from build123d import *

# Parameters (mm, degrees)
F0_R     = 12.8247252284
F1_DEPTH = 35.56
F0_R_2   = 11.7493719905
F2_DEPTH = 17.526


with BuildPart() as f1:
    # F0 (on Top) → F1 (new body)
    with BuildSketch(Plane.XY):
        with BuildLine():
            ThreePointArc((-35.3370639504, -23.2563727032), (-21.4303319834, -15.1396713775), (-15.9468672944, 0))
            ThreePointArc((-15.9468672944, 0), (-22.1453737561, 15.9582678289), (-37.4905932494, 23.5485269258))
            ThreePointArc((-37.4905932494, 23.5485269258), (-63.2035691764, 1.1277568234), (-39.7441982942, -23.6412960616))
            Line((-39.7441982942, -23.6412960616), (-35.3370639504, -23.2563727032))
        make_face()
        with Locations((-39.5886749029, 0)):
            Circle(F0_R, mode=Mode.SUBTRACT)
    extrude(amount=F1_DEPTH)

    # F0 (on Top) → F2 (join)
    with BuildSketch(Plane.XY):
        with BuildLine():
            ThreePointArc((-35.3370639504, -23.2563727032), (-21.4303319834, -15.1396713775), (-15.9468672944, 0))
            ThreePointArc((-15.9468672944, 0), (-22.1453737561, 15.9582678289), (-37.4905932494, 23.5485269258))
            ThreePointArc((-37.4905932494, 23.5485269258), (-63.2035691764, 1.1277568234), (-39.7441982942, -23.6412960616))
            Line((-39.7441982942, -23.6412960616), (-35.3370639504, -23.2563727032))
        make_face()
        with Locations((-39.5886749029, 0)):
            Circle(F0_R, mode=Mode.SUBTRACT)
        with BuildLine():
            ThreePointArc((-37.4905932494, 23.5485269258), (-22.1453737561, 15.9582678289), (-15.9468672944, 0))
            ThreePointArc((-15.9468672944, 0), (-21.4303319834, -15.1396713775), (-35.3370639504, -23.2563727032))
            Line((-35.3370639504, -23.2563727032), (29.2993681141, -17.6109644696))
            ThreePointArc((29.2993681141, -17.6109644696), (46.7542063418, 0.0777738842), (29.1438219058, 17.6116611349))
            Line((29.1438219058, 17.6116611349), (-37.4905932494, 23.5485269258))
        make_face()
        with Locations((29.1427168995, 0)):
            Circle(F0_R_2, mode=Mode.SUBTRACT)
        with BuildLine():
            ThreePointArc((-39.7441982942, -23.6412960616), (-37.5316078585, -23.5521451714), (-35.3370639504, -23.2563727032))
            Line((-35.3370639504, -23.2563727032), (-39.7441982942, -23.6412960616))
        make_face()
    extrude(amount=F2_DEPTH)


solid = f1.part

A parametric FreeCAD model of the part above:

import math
import FreeCAD as App
import Part
import Sketcher

V = App.Vector
Q = App.Units.Quantity

doc = App.newDocument("Part")
body = doc.addObject("PartDesign::Body", "Body")

sketch1 = doc.addObject("Sketcher::SketchObject", "Sketch")
body.addObject(sketch1)
sketch1.AttachmentSupport = (doc.XY_Plane, [""])
sketch1.MapMode = "FlatFace"
sketch1.addGeometry([
    Part.ArcOfCircle(Part.Circle(V(-39.588675, 0, 0), V(0, 0, 1), 23.641808), math.radians(-79.639884), math.radians(0)),
    Part.ArcOfCircle(Part.Circle(V(-39.588675, 0, 0), V(0, 0, 1), 23.641808), math.radians(0), math.radians(84.908614)),
    Part.ArcOfCircle(Part.Circle(V(-39.588675, 0, 0), V(0, 0, 1), 23.641808), math.radians(84.908614), math.radians(269.623087)),
    Part.LineSegment(V(-39.744198, -23.641296, 0), V(-35.337064, -23.256373, 0)),
    Part.Circle(V(-39.588675, 0, 0), V(0, 0, 1), 12.824725),
], False)
sketch1.addConstraint([
    Sketcher.Constraint("Tangent", 0, 2, 1, 1),
    Sketcher.Constraint("Tangent", 1, 2, 2, 1),
    Sketcher.Constraint("Coincident", 2, 2, 3, 1),
    Sketcher.Constraint("Coincident", 3, 2, 0, 1),
    Sketcher.Constraint("Coincident", 2, 3, 0, 3),
    Sketcher.Constraint("Coincident", 4, 3, 0, 3),
    Sketcher.Constraint("PointOnObject", 0, 3, -1),
    Sketcher.Constraint("PointOnObject", 0, 2, -1),
    Sketcher.Constraint("Diameter", 4, Q("25.64945 mm")),
    Sketcher.Constraint("Radius", 0, Q("23.641808 mm")),
    Sketcher.Constraint("DistanceX", 2, 2, -1, 1, Q("39.744198 mm")),
    Sketcher.Constraint("DistanceX", 0, 3, 1, 2, Q("2.098082 mm")),
    Sketcher.Constraint("DistanceX", 2, 2, 0, 2, Q("23.797331 mm")),
    Sketcher.Constraint("DistanceX", 0, 3, 3, 2, Q("4.251611 mm")),
])
pad1 = doc.addObject("PartDesign::Pad", "Pad")
body.addObject(pad1)
pad1.Profile = sketch1
pad1.Length = Q("1.4 in")

sketch2 = doc.addObject("Sketcher::SketchObject", "Sketch001")
body.addObject(sketch2)
sketch2.AttachmentSupport = (doc.XY_Plane, [""])
sketch2.MapMode = "FlatFace"
sketch2.addGeometry([
    Part.ArcOfCircle(Part.Circle(V(-39.588675, 0, 0), V(0, 0, 1), 23.641808), math.radians(84.908614), math.radians(269.623087)),
    Part.ArcOfCircle(Part.Circle(V(-39.588675, 0, 0), V(0, 0, 1), 23.641808), math.radians(-90.376913), math.radians(-79.639884)),
    Part.LineSegment(V(-35.337064, -23.256373, 0), V(29.299368, -17.610964, 0)),
    Part.ArcOfCircle(Part.Circle(V(29.142717, 0, 0), V(0, 0, 1), 17.611661), math.radians(-89.490362), math.radians(89.996405)),
    Part.LineSegment(V(29.143822, 17.611661, 0), V(-37.490593, 23.548527, 0)),
    Part.Circle(V(-39.588675, 0, 0), V(0, 0, 1), 12.824725),
    Part.Circle(V(29.142717, 0, 0), V(0, 0, 1), 11.749372),
], False)
sketch2.addConstraint([
    Sketcher.Constraint("Tangent", 0, 2, 1, 1),
    Sketcher.Constraint("Coincident", 1, 2, 2, 1),
    Sketcher.Constraint("Coincident", 2, 2, 3, 1),
    Sketcher.Constraint("Coincident", 3, 2, 4, 1),
    Sketcher.Constraint("Tangent", 4, 2, 0, 1),
    Sketcher.Constraint("Coincident", 5, 3, 0, 3),
    Sketcher.Constraint("Coincident", 6, 3, 3, 3),
    Sketcher.Constraint("Equal", 0, 1),
    Sketcher.Constraint("PointOnObject", 0, 3, -1),
    Sketcher.Constraint("PointOnObject", 3, 3, -1),
    Sketcher.Constraint("Diameter", 5, Q("25.64945 mm")),
    Sketcher.Constraint("Radius", 3, Q("17.611661 mm")),
    Sketcher.Constraint("Diameter", 6, Q("23.498744 mm")),
    Sketcher.Constraint("Radius", 0, Q("23.641808 mm")),
    Sketcher.Constraint("Distance", 2, Q("64.882501 mm")),
    Sketcher.Constraint("DistanceX", 0, 2, -1, 1, Q("39.744198 mm")),
    Sketcher.Constraint("DistanceY", 1, 2, 4, 2, Q("46.8049 mm")),
    Sketcher.Constraint("Distance", 4, Q("66.898368 mm")),
    Sketcher.Constraint("DistanceX", -1, 1, 2, 2, Q("29.299368 mm")),
    Sketcher.Constraint("DistanceX", 1, 3, 3, 3, Q("68.731392 mm")),
])
pad2 = doc.addObject("PartDesign::Pad", "Pad001")
body.addObject(pad2)
pad2.Profile = sketch2
pad2.Length = Q("0.69 in")

doc.recompute()
